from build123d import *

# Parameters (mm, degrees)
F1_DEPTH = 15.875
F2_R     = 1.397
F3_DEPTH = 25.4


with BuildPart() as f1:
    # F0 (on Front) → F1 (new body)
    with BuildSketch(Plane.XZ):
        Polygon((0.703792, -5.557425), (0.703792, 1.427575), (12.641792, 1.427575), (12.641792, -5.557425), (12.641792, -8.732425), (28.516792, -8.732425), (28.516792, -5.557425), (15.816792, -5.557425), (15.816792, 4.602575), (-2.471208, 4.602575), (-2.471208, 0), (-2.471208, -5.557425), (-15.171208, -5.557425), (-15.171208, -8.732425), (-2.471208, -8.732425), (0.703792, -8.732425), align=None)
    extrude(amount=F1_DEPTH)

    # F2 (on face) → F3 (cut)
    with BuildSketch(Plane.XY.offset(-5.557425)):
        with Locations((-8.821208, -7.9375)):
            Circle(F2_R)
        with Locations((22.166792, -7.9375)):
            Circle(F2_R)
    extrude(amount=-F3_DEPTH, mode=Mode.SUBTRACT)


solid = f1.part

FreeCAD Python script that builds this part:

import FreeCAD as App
import Part
import Sketcher

V = App.Vector
Q = App.Units.Quantity

doc = App.newDocument("Part")
params = doc.addObject("Spreadsheet::Sheet", "Params")
for row, (alias, value) in enumerate([
    ("sketch1_width", "0.5 in"),
    ("sketch1_height", "0.4 in"),
    ("sketch1_width2", "0.47 in"),
    ("sketch1_width3", "0.72 in"),
    ("sketch1_height2", "0.125 in"),
    ("pad1_length", "0.625 in"),
    ("sketch2_diameter", "0.11 in"),
    ("pocket1_length", "1 in"),
], start=1):
    params.set(f"A{row}", alias)
    params.set(f"B{row}", "=" + value)
    params.setAlias(f"B{row}", alias)

body = doc.addObject("PartDesign::Body", "Body")

sketch1 = body.newObject("Sketcher::SketchObject", "Sketch")
sketch1.AttachmentSupport = (doc.getObject("XZ_Plane"), [""])
sketch1.MapMode = "FlatFace"
sketch1.addGeometry([
    Part.LineSegment(V(0.703792, 1.427575, 0), V(12.641792, 1.427575, 0)),
    Part.LineSegment(V(12.641792, 1.427575, 0), V(12.641792, -8.732425, 0)),
    Part.LineSegment(V(12.641792, -8.732425, 0), V(28.516792, -8.732425, 0)),
    Part.LineSegment(V(28.516792, -8.732425, 0), V(28.516792, -5.557425, 0)),
    Part.LineSegment(V(28.516792, -5.557425, 0), V(15.816792, -5.557425, 0)),
    Part.LineSegment(V(15.816792, -5.557425, 0), V(15.816792, 4.602575, 0)),
    Part.LineSegment(V(15.816792, 4.602575, 0), V(-2.471208, 4.602575, 0)),
    Part.LineSegment(V(-2.471208, 4.602575, 0), V(-2.471208, -5.557425, 0)),
    Part.LineSegment(V(-2.471208, -5.557425, 0), V(-15.171208, -5.557425, 0)),
    Part.LineSegment(V(-15.171208, -5.557425, 0), V(-15.171208, -8.732425, 0)),
    Part.LineSegment(V(-15.171208, -8.732425, 0), V(0.703792, -8.732425, 0)),
    Part.LineSegment(V(0.703792, -8.732425, 0), V(0.703792, 1.427575, 0)),
], False)
sketch1.addConstraint([
    Sketcher.Constraint("Coincident", 0, 2, 1, 1),
    Sketcher.Constraint("Coincident", 1, 2, 2, 1),
    Sketcher.Constraint("Coincident", 2, 2, 3, 1),
    Sketcher.Constraint("Coincident", 3, 2, 4, 1),
    Sketcher.Constraint("Coincident", 4, 2, 5, 1),
    Sketcher.Constraint("Coincident", 5, 2, 6, 1),
    Sketcher.Constraint("Coincident", 6, 2, 7, 1),
    Sketcher.Constraint("Coincident", 7, 2, 8, 1),
    Sketcher.Constraint("Coincident", 8, 2, 9, 1),
    Sketcher.Constraint("Coincident", 9, 2, 10, 1),
    Sketcher.Constraint("Coincident", 10, 2, 11, 1),
    Sketcher.Constraint("Coincident", 11, 2, 0, 1),
    Sketcher.Constraint("Horizontal", 0),
    Sketcher.Constraint("Vertical", 1),
    Sketcher.Constraint("Horizontal", 2),
    Sketcher.Constraint("Vertical", 3),
    Sketcher.Constraint("Horizontal", 4),
    Sketcher.Constraint("Vertical", 5),
    Sketcher.Constraint("Horizontal", 6),
    Sketcher.Constraint("Vertical", 7),
    Sketcher.Constraint("Horizontal", 8),
    Sketcher.Constraint("Vertical", 9),
    Sketcher.Constraint("Horizontal", 10),
    Sketcher.Constraint("Vertical", 11),
    Sketcher.Constraint("Horizontal", 4, 2, 7, 2),
    Sketcher.Constraint("Horizontal", 2, 2, 9, 2),
    Sketcher.Constraint("Equal", 4, 8),
    Sketcher.Constraint("Equal", 2, 10),
    Sketcher.Constraint("Equal", 1, 5),
    Sketcher.Constraint("DistanceX", 4, 2, 4, 1, Q("0.5 in")),
    Sketcher.Constraint("DistanceY", 1, 2, 1, 1, Q("0.4 in")),
    Sketcher.Constraint("DistanceX", 0, 1, 0, 2, Q("0.47 in")),
    Sketcher.Constraint("DistanceX", 6, 2, 6, 1, Q("0.72 in")),
    Sketcher.Constraint("DistanceY", 3, 1, 3, 2, Q("0.125 in")),
    Sketcher.Constraint("DistanceX", -1, 1, 2, 2, Q("28.516792 mm")),
    Sketcher.Constraint("DistanceY", -1, 1, 0, 2, Q("1.427575 mm")),
])
sketch1.setExpression("Constraints[29]", "Params.sketch1_width")
sketch1.setExpression("Constraints[30]", "Params.sketch1_height")
sketch1.setExpression("Constraints[31]", "Params.sketch1_width2")
sketch1.setExpression("Constraints[32]", "Params.sketch1_width3")
sketch1.setExpression("Constraints[33]", "Params.sketch1_height2")
pad1 = body.newObject("PartDesign::Pad", "Pad")
pad1.Profile = sketch1
pad1.setExpression("Length", "Params.pad1_length")

sketch2 = body.newObject("Sketcher::SketchObject", "Sketch001")
sketch2.AttachmentSupport = (doc.getObject("XY_Plane"), [""])
sketch2.MapMode = "FlatFace"
sketch2.AttachmentOffset = App.Placement(V(0, 0, -5.557425), App.Rotation())
sketch2.addGeometry([
    Part.Circle(V(-8.821208, -7.9375, 0), V(0, 0, 1), 1.397),
    Part.Circle(V(22.166792, -7.9375, 0), V(0, 0, 1), 1.397),
], False)
sketch2.addConstraint([
    Sketcher.Constraint("Equal", 0, 1),
    Sketcher.Constraint("Horizontal", 0, 3, 1, 3),
    Sketcher.Constraint("Diameter", 0, Q("0.11 in")),
    Sketcher.Constraint("DistanceX", 0, 3, 1, 3, Q("1.22 in")),
    Sketcher.Constraint("DistanceY", 0, 3, -1, 1, Q("0.3125 in")),
    Sketcher.Constraint("DistanceX", 0, 3, -1, 1, Q("8.821208 mm")),
])
sketch2.setExpression("Constraints[2]", "Params.sketch2_diameter")
pocket1 = body.newObject("PartDesign::Pocket", "Pocket")
pocket1.Profile = sketch2
pocket1.setExpression("Length", "Params.pocket1_length")

doc.recompute()
